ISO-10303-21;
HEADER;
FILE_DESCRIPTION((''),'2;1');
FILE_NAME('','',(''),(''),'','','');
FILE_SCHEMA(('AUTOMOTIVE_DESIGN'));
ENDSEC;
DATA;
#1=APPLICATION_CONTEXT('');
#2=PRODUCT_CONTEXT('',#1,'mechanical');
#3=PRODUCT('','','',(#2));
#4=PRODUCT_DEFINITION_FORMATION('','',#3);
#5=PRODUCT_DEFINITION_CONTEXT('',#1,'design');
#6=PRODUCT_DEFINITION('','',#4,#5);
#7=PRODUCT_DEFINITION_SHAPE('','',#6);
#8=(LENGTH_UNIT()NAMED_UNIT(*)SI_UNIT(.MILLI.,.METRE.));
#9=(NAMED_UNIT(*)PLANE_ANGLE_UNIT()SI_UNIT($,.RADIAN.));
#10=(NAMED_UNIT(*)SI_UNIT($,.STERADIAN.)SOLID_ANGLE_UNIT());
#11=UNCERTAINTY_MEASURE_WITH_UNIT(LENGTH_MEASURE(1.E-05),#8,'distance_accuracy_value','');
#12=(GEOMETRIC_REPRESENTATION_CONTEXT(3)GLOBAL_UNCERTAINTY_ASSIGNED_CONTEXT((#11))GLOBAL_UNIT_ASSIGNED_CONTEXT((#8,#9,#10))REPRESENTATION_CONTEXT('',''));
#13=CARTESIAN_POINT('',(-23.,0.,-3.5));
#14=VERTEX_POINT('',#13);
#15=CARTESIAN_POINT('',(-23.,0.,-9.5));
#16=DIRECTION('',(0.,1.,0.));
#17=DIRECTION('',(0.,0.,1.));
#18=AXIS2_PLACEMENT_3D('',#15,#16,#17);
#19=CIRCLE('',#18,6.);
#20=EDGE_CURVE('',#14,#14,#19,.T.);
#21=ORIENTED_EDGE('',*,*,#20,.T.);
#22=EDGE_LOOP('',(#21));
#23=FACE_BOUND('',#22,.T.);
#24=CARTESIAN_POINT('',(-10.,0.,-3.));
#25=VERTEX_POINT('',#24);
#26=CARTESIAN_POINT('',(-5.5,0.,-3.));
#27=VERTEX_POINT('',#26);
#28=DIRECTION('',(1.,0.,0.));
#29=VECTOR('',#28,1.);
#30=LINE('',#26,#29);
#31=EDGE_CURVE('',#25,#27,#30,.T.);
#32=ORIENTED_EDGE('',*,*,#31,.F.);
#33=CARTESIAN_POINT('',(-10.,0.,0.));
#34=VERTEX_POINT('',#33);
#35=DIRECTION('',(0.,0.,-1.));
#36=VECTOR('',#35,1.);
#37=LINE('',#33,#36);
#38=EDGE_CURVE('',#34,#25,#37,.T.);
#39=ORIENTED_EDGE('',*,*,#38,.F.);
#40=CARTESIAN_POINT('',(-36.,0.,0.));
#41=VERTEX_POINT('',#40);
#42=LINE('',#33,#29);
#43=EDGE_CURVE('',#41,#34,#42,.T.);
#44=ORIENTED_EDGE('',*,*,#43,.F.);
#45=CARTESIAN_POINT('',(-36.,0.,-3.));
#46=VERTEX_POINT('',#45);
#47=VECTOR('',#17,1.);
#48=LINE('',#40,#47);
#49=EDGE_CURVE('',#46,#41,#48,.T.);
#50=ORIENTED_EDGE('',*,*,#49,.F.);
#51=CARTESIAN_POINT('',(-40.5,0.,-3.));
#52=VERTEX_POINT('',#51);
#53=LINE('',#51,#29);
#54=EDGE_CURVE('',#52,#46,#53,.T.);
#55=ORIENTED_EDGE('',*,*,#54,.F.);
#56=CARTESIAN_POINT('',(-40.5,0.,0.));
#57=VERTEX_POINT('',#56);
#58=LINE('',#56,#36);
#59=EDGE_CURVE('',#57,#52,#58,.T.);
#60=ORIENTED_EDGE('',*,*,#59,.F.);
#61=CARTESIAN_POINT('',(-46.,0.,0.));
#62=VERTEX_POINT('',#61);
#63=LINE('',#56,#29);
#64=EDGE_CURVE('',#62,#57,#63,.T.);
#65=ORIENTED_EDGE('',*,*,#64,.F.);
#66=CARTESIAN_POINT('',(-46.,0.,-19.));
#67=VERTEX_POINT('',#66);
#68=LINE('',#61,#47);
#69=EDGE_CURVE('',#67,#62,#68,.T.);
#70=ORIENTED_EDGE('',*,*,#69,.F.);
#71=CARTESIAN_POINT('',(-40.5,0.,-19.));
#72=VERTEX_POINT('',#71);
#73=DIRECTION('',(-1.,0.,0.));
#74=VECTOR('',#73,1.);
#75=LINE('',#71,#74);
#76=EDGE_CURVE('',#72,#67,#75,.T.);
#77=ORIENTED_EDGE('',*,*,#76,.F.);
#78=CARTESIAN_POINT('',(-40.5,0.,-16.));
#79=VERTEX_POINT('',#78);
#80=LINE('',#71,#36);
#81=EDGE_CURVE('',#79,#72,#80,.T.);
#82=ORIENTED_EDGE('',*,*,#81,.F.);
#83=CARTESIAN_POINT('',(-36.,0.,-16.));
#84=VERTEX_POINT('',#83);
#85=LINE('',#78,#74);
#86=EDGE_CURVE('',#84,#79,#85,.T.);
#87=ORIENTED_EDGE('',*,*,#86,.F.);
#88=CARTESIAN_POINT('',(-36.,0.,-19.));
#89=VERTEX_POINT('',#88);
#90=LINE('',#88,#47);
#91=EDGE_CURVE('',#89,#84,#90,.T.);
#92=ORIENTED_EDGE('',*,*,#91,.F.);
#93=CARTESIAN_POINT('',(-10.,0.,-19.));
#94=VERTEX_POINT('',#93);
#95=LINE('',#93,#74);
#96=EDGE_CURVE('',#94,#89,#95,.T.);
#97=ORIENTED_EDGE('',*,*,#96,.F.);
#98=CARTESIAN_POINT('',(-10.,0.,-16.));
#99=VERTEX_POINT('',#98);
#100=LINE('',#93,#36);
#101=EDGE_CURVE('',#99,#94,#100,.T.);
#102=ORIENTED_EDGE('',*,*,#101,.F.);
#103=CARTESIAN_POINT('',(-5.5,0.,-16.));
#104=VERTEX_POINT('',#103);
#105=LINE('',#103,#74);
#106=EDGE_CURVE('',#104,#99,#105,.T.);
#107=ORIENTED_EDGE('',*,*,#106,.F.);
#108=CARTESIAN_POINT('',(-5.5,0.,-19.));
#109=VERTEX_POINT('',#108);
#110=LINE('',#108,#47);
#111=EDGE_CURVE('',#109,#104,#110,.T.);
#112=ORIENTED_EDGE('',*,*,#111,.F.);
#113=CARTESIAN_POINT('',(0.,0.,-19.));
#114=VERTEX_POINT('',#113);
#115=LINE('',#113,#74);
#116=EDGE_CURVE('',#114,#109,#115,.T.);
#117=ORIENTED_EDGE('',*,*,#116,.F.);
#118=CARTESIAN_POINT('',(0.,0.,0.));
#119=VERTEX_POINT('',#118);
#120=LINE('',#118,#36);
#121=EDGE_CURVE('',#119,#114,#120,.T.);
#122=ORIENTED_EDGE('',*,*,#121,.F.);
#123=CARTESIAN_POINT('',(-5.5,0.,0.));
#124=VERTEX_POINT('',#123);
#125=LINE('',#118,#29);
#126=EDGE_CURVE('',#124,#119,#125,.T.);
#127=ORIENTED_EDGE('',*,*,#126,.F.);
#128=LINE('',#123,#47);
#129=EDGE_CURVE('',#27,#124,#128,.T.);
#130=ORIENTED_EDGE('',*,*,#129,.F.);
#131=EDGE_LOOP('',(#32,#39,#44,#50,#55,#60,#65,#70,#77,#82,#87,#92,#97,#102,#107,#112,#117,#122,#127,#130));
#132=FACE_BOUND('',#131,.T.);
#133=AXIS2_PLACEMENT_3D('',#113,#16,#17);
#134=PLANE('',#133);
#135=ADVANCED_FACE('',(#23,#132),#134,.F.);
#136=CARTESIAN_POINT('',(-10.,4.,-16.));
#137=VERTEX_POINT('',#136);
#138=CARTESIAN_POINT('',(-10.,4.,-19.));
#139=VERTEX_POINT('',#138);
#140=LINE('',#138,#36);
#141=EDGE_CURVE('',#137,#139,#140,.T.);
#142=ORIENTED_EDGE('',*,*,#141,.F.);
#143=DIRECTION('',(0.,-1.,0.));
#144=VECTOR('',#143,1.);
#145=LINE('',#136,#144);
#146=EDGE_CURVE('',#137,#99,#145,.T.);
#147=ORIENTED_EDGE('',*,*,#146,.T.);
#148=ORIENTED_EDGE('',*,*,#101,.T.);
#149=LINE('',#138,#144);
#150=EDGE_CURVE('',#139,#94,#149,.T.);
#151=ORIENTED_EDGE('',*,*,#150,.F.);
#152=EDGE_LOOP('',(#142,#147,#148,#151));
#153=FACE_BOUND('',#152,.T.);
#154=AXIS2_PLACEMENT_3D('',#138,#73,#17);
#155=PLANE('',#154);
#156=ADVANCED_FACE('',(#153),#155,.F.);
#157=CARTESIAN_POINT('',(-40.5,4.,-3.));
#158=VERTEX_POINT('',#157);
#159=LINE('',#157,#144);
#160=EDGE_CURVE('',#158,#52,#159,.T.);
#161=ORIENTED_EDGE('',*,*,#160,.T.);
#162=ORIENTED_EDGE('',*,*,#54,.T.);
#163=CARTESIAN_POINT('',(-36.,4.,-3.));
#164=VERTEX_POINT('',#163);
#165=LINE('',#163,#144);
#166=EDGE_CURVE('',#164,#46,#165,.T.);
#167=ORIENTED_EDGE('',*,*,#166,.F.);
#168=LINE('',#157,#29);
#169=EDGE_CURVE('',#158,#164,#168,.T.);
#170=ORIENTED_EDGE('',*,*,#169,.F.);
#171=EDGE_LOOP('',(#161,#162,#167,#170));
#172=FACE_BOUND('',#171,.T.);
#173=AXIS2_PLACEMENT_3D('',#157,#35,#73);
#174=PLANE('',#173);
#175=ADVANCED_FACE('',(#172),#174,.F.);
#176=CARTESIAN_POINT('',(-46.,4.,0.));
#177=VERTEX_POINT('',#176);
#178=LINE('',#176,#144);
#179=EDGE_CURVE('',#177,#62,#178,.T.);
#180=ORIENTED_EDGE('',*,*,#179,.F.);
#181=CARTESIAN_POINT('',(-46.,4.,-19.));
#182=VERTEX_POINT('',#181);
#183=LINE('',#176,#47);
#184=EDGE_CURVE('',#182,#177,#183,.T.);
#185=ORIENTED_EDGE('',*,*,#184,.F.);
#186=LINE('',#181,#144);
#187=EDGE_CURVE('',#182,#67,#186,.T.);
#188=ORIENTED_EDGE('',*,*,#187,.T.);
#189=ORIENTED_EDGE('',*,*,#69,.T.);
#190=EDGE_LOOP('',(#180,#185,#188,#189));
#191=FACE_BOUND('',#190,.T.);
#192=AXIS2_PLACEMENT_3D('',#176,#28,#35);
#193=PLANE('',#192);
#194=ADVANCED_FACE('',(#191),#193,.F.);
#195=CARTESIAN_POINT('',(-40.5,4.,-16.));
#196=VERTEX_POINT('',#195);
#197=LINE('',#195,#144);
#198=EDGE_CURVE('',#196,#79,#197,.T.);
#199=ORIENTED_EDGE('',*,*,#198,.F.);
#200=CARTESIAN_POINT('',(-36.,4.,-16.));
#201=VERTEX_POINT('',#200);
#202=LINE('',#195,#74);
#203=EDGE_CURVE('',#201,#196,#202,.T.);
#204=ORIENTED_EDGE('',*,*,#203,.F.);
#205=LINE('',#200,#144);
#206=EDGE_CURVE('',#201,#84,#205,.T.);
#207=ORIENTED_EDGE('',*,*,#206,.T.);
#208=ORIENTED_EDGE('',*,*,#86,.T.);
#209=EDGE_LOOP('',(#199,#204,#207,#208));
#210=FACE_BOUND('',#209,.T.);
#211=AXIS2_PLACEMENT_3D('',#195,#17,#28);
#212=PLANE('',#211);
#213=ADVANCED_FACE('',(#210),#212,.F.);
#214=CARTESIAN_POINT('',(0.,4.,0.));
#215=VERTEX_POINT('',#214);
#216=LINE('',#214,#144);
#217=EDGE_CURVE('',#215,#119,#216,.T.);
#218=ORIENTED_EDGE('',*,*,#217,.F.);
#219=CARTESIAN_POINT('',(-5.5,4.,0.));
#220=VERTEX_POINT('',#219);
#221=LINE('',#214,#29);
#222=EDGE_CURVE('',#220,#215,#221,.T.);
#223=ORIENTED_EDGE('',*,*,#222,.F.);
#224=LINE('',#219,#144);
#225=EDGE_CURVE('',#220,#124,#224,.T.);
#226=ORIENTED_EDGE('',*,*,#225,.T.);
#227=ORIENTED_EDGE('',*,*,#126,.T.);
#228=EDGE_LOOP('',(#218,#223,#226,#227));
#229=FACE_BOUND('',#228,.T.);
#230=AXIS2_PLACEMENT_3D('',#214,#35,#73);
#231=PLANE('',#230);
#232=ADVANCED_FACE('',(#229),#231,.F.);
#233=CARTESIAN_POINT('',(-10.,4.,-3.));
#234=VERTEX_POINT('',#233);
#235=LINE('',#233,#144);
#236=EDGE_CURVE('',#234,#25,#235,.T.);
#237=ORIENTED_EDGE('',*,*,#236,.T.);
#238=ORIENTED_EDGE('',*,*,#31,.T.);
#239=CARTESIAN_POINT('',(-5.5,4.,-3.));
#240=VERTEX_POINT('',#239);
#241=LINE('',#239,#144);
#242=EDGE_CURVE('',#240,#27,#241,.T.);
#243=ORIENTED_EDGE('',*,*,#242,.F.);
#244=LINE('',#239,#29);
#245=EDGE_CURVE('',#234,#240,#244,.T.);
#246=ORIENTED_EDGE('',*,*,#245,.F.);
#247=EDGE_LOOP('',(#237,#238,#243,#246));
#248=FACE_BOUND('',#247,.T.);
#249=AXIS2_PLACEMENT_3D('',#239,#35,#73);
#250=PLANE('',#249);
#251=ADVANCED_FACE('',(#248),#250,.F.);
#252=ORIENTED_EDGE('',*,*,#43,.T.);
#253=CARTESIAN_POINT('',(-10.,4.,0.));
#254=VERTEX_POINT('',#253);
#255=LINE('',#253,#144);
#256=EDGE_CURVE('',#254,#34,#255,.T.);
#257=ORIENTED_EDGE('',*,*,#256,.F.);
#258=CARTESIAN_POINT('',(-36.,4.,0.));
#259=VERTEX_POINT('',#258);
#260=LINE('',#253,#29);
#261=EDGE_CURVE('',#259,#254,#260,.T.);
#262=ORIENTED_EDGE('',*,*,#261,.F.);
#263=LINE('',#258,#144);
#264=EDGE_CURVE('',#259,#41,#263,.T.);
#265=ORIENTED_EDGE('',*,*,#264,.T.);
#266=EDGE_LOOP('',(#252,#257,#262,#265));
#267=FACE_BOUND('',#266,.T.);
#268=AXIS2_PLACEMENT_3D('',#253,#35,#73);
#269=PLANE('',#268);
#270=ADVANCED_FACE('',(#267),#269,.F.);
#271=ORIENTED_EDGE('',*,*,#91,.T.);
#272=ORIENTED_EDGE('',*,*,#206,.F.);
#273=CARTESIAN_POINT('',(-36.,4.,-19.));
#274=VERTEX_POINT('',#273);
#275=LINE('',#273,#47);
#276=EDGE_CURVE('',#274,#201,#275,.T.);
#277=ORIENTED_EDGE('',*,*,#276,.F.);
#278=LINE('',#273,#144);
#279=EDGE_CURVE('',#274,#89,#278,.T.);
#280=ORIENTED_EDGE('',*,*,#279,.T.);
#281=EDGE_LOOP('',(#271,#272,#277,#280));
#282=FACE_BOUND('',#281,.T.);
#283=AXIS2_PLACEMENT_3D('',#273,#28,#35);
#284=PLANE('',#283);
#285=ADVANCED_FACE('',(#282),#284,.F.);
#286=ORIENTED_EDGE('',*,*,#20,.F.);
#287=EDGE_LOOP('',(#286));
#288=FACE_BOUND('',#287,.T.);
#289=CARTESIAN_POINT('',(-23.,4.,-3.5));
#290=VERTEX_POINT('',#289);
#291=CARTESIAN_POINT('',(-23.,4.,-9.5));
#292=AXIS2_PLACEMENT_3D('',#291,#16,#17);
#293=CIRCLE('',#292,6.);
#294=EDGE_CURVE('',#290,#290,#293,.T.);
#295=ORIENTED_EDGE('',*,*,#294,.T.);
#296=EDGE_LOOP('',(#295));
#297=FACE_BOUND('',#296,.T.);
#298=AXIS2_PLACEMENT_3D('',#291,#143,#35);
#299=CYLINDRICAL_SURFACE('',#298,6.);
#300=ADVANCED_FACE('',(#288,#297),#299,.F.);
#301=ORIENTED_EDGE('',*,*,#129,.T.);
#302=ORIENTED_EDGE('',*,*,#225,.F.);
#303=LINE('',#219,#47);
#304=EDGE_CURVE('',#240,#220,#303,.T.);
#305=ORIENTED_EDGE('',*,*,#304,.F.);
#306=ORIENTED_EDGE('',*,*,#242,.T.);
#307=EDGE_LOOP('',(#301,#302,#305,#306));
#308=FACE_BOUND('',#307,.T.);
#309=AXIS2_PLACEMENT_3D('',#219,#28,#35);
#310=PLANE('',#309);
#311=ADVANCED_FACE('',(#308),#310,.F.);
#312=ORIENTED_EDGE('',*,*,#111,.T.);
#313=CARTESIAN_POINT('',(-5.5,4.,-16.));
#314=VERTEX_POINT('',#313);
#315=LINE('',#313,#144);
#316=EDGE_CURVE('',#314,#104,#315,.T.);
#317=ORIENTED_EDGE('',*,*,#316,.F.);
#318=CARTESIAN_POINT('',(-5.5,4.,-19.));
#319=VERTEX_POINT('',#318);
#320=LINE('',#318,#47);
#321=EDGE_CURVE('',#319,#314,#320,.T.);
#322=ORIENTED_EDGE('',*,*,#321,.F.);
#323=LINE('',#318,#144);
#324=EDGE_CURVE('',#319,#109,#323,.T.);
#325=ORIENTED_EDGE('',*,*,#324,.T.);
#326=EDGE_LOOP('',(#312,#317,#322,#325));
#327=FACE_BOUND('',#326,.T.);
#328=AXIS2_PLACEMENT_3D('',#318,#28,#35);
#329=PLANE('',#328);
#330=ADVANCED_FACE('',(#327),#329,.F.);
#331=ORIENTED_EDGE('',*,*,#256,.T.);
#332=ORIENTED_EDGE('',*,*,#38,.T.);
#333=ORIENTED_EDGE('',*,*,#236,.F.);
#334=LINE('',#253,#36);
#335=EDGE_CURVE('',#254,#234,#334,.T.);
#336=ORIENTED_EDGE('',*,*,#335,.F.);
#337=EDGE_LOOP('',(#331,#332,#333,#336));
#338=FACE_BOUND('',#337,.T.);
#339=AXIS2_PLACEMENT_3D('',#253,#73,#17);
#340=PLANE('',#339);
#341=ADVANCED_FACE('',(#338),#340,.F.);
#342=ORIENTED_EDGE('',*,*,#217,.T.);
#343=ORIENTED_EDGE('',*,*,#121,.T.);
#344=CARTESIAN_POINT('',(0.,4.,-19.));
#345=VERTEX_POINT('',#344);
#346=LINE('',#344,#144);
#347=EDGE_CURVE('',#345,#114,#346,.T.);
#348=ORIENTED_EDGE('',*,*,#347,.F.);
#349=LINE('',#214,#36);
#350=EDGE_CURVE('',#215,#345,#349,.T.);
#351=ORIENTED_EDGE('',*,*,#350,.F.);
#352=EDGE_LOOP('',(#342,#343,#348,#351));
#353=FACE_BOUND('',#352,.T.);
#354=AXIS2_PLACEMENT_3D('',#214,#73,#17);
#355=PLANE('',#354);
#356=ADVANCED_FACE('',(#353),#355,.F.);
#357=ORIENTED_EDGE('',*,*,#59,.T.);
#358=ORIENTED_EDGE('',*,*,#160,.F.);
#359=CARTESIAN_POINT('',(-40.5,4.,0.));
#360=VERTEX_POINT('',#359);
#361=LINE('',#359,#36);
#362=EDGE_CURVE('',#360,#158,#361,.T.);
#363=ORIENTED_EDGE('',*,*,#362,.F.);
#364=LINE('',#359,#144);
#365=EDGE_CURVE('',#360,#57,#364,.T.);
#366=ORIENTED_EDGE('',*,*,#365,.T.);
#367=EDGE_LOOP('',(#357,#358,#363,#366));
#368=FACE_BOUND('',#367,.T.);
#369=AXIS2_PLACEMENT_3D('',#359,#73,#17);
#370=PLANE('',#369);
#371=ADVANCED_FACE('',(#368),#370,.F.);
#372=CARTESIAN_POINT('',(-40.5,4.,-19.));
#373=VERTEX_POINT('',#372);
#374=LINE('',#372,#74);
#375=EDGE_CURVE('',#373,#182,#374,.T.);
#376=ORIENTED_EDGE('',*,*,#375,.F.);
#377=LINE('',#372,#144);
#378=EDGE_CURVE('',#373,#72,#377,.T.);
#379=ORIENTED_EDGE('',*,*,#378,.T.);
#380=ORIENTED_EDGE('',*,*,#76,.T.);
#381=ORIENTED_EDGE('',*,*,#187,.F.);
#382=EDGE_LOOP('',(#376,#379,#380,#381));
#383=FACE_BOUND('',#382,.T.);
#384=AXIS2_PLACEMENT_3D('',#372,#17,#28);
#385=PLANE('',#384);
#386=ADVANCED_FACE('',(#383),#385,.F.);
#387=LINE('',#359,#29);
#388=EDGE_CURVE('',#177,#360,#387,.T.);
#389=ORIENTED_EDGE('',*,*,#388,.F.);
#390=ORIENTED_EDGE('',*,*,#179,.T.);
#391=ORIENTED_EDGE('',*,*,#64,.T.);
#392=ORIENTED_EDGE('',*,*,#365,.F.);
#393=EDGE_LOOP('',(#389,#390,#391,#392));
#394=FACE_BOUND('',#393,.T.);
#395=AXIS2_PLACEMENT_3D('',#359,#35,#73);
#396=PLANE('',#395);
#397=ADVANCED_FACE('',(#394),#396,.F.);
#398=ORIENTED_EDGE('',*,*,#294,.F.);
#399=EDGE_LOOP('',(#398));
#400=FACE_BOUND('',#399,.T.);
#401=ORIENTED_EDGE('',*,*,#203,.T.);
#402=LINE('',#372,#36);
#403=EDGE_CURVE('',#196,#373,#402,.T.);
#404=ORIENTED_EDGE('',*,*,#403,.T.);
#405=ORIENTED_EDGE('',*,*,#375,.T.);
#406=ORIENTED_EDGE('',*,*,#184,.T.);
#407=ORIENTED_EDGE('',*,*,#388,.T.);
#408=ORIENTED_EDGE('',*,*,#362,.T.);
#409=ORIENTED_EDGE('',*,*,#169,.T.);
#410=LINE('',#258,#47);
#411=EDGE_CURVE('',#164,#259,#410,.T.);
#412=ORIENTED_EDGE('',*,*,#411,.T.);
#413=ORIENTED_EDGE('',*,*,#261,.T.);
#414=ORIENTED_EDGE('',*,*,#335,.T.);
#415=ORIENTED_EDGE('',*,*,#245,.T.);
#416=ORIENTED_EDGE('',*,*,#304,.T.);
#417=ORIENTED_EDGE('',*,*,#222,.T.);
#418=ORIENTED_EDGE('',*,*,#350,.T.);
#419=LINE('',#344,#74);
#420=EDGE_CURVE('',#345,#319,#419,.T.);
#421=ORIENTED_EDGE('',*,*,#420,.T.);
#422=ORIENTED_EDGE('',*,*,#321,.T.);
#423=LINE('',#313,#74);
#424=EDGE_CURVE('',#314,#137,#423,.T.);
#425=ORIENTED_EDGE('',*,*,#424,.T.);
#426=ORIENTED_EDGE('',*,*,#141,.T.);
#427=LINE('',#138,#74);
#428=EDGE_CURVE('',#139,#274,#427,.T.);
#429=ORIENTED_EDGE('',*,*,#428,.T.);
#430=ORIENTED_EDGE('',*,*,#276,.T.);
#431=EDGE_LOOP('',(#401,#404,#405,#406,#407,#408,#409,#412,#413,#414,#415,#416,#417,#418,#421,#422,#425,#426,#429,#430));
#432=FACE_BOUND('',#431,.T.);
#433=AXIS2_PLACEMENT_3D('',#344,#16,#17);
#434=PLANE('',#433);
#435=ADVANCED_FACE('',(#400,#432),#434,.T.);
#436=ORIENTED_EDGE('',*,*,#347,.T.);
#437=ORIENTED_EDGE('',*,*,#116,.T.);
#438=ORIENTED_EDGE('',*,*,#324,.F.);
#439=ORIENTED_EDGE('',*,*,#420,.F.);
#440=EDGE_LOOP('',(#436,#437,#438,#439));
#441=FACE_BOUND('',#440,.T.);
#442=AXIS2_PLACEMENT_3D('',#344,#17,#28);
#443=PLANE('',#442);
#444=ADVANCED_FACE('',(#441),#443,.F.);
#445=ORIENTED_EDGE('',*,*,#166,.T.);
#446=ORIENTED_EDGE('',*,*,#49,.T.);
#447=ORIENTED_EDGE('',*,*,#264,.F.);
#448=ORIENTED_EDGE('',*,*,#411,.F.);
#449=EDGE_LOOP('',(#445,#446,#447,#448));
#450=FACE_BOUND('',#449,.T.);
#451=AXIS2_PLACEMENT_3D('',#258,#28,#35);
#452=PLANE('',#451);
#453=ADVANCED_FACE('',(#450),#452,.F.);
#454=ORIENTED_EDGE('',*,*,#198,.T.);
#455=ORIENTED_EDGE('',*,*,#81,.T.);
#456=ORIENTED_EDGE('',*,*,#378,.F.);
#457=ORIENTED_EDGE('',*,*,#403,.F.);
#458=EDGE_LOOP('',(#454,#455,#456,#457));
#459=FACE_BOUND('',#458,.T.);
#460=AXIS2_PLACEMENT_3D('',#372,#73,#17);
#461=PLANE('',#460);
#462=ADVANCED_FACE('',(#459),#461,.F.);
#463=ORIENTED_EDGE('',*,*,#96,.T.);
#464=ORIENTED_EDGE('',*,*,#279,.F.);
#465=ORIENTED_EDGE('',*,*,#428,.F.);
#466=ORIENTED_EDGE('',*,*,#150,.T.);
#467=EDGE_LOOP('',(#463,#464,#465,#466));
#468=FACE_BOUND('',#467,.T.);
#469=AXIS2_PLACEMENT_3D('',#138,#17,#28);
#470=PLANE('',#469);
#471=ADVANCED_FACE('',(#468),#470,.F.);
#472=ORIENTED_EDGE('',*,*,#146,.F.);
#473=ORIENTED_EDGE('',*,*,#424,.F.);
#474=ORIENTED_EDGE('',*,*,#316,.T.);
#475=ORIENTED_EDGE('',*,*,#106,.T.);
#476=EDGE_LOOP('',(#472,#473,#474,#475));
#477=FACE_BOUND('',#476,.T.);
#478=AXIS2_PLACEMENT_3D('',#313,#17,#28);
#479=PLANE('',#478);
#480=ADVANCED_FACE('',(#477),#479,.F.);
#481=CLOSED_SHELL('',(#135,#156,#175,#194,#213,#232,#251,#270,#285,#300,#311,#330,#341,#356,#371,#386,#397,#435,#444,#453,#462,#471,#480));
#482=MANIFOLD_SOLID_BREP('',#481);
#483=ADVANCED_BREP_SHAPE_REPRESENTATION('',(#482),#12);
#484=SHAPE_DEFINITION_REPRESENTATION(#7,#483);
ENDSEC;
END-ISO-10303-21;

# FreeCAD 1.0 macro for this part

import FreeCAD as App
import Part
import Sketcher

V = App.Vector
Q = App.Units.Quantity

doc = App.newDocument("Part")
body = doc.addObject("PartDesign::Body", "Body")

sketch1 = body.newObject("Sketcher::SketchObject", "Sketch")
sketch1.AttachmentSupport = (doc.getObject("XZ_Plane"), [""])
sketch1.MapMode = "FlatFace"
sketch1.addGeometry([
    Part.LineSegment(V(-5.5, 0, 0), V(0, 0, 0)),
    Part.LineSegment(V(0, 0, 0), V(0, -19, 0)),
    Part.LineSegment(V(0, -19, 0), V(-5.5, -19, 0)),
    Part.LineSegment(V(-5.5, -19, 0), V(-5.5, -16, 0)),
    Part.LineSegment(V(-5.5, -16, 0), V(-10, -16, 0)),
    Part.LineSegment(V(-10, -16, 0), V(-10, -19, 0)),
    Part.LineSegment(V(-10, -19, 0), V(-36, -19, 0)),
    Part.LineSegment(V(-36, -19, 0), V(-36, -16, 0)),
    Part.LineSegment(V(-36, -16, 0), V(-40.5, -16, 0)),
    Part.LineSegment(V(-40.5, -16, 0), V(-40.5, -19, 0)),
    Part.LineSegment(V(-40.5, -19, 0), V(-46, -19, 0)),
    Part.LineSegment(V(-46, -19, 0), V(-46, 0, 0)),
    Part.LineSegment(V(-46, 0, 0), V(-40.5, 0, 0)),
    Part.LineSegment(V(-40.5, 0, 0), V(-40.5, -3, 0)),
    Part.LineSegment(V(-40.5, -3, 0), V(-36, -3, 0)),
    Part.LineSegment(V(-36, -3, 0), V(-36, 0, 0)),
    Part.LineSegment(V(-36, 0, 0), V(-10, 0, 0)),
    Part.LineSegment(V(-10, 0, 0), V(-10, -3, 0)),
    Part.LineSegment(V(-10, -3, 0), V(-5.5, -3, 0)),
    Part.LineSegment(V(-5.5, -3, 0), V(-5.5, 0, 0)),
    Part.Circle(V(-23, -9.5, 0), V(0, 0, 1), 6),
], False)
sketch1.addConstraint([
    Sketcher.Constraint("Coincident", 0, 2, 1, 1),
    Sketcher.Constraint("Coincident", 1, 2, 2, 1),
    Sketcher.Constraint("Coincident", 2, 2, 3, 1),
    Sketcher.Constraint("Coincident", 3, 2, 4, 1),
    Sketcher.Constraint("Coincident", 4, 2, 5, 1),
    Sketcher.Constraint("Coincident", 5, 2, 6, 1),
    Sketcher.Constraint("Coincident", 6, 2, 7, 1),
    Sketcher.Constraint("Coincident", 7, 2, 8, 1),
    Sketcher.Constraint("Coincident", 8, 2, 9, 1),
    Sketcher.Constraint("Coincident", 9, 2, 10, 1),
    Sketcher.Constraint("Coincident", 10, 2, 11, 1),
    Sketcher.Constraint("Coincident", 11, 2, 12, 1),
    Sketcher.Constraint("Coincident", 12, 2, 13, 1),
    Sketcher.Constraint("Coincident", 13, 2, 14, 1),
    Sketcher.Constraint("Coincident", 14, 2, 15, 1),
    Sketcher.Constraint("Coincident", 15, 2, 16, 1),
    Sketcher.Constraint("Coincident", 16, 2, 17, 1),
    Sketcher.Constraint("Coincident", 17, 2, 18, 1),
    Sketcher.Constraint("Coincident", 18, 2, 19, 1),
    Sketcher.Constraint("Coincident", 19, 2, 0, 1),
    Sketcher.Constraint("Horizontal", 0),
    Sketcher.Constraint("Vertical", 1),
    Sketcher.Constraint("Horizontal", 2),
    Sketcher.Constraint("Vertical", 3),
    Sketcher.Constraint("Horizontal", 4),
    Sketcher.Constraint("Vertical", 5),
    Sketcher.Constraint("Horizontal", 6),
    Sketcher.Constraint("Vertical", 7),
    Sketcher.Constraint("Horizontal", 8),
    Sketcher.Constraint("Vertical", 9),
    Sketcher.Constraint("Horizontal", 10),
    Sketcher.Constraint("Vertical", 11),
    Sketcher.Constraint("Horizontal", 12),
    Sketcher.Constraint("Vertical", 13),
    Sketcher.Constraint("Horizontal", 14),
    Sketcher.Constraint("Vertical", 15),
    Sketcher.Constraint("Horizontal", 16),
    Sketcher.Constraint("Vertical", 17),
    Sketcher.Constraint("Horizontal", 18),
    Sketcher.Constraint("Vertical", 19),
    Sketcher.Constraint("Coincident", 0, 2, -1, 1),
    Sketcher.Constraint("PointOnObject", 11, 2, -1),
    Sketcher.Constraint("PointOnObject", 15, 2, -1),
    Sketcher.Constraint("Horizontal", 2, 2, 5, 2),
    Sketcher.Constraint("Horizontal", 4, 2, 7, 2),
    Sketcher.Constraint("Horizontal", 6, 2, 9, 2),
    Sketcher.Constraint("Horizontal", 14, 2, 17, 2),
    Sketcher.Constraint("Vertical", 9, 2, 12, 2),
    Sketcher.Constraint("Vertical", 7, 2, 14, 2),
    Sketcher.Constraint("Vertical", 5, 2, 16, 2),
    Sketcher.Constraint("Vertical", 3, 2, 18, 2),
    Sketcher.Constraint("Equal", 4, 8),
    Sketcher.Constraint("Equal", 2, 10),
    Sketcher.Constraint("Equal", 9, 13),
    Sketcher.Constraint("Diameter", 20, Q("12 mm")),
    Sketcher.Constraint("DistanceX", 6, 2, 6, 1, Q("26 mm")),
    Sketcher.Constraint("DistanceY", 1, 2, 1, 1, Q("19 mm")),
    Sketcher.Constraint("DistanceY", 3, 1, 3, 2, Q("3 mm")),
    Sketcher.Constraint("DistanceX", 0, 1, 0, 2, Q("5.5 mm")),
    Sketcher.Constraint("DistanceX", 4, 2, 4, 1, Q("4.5 mm")),
    Sketcher.Constraint("DistanceX", 20, 3, -1, 1, Q("23 mm")),
    Sketcher.Constraint("DistanceY", 20, 3, -1, 1, Q("9.5 mm")),
])
pad1 = body.newObject("PartDesign::Pad", "Pad")
pad1.Profile = sketch1
pad1.Length = 4
pad1.Reversed = True

doc.recompute()
